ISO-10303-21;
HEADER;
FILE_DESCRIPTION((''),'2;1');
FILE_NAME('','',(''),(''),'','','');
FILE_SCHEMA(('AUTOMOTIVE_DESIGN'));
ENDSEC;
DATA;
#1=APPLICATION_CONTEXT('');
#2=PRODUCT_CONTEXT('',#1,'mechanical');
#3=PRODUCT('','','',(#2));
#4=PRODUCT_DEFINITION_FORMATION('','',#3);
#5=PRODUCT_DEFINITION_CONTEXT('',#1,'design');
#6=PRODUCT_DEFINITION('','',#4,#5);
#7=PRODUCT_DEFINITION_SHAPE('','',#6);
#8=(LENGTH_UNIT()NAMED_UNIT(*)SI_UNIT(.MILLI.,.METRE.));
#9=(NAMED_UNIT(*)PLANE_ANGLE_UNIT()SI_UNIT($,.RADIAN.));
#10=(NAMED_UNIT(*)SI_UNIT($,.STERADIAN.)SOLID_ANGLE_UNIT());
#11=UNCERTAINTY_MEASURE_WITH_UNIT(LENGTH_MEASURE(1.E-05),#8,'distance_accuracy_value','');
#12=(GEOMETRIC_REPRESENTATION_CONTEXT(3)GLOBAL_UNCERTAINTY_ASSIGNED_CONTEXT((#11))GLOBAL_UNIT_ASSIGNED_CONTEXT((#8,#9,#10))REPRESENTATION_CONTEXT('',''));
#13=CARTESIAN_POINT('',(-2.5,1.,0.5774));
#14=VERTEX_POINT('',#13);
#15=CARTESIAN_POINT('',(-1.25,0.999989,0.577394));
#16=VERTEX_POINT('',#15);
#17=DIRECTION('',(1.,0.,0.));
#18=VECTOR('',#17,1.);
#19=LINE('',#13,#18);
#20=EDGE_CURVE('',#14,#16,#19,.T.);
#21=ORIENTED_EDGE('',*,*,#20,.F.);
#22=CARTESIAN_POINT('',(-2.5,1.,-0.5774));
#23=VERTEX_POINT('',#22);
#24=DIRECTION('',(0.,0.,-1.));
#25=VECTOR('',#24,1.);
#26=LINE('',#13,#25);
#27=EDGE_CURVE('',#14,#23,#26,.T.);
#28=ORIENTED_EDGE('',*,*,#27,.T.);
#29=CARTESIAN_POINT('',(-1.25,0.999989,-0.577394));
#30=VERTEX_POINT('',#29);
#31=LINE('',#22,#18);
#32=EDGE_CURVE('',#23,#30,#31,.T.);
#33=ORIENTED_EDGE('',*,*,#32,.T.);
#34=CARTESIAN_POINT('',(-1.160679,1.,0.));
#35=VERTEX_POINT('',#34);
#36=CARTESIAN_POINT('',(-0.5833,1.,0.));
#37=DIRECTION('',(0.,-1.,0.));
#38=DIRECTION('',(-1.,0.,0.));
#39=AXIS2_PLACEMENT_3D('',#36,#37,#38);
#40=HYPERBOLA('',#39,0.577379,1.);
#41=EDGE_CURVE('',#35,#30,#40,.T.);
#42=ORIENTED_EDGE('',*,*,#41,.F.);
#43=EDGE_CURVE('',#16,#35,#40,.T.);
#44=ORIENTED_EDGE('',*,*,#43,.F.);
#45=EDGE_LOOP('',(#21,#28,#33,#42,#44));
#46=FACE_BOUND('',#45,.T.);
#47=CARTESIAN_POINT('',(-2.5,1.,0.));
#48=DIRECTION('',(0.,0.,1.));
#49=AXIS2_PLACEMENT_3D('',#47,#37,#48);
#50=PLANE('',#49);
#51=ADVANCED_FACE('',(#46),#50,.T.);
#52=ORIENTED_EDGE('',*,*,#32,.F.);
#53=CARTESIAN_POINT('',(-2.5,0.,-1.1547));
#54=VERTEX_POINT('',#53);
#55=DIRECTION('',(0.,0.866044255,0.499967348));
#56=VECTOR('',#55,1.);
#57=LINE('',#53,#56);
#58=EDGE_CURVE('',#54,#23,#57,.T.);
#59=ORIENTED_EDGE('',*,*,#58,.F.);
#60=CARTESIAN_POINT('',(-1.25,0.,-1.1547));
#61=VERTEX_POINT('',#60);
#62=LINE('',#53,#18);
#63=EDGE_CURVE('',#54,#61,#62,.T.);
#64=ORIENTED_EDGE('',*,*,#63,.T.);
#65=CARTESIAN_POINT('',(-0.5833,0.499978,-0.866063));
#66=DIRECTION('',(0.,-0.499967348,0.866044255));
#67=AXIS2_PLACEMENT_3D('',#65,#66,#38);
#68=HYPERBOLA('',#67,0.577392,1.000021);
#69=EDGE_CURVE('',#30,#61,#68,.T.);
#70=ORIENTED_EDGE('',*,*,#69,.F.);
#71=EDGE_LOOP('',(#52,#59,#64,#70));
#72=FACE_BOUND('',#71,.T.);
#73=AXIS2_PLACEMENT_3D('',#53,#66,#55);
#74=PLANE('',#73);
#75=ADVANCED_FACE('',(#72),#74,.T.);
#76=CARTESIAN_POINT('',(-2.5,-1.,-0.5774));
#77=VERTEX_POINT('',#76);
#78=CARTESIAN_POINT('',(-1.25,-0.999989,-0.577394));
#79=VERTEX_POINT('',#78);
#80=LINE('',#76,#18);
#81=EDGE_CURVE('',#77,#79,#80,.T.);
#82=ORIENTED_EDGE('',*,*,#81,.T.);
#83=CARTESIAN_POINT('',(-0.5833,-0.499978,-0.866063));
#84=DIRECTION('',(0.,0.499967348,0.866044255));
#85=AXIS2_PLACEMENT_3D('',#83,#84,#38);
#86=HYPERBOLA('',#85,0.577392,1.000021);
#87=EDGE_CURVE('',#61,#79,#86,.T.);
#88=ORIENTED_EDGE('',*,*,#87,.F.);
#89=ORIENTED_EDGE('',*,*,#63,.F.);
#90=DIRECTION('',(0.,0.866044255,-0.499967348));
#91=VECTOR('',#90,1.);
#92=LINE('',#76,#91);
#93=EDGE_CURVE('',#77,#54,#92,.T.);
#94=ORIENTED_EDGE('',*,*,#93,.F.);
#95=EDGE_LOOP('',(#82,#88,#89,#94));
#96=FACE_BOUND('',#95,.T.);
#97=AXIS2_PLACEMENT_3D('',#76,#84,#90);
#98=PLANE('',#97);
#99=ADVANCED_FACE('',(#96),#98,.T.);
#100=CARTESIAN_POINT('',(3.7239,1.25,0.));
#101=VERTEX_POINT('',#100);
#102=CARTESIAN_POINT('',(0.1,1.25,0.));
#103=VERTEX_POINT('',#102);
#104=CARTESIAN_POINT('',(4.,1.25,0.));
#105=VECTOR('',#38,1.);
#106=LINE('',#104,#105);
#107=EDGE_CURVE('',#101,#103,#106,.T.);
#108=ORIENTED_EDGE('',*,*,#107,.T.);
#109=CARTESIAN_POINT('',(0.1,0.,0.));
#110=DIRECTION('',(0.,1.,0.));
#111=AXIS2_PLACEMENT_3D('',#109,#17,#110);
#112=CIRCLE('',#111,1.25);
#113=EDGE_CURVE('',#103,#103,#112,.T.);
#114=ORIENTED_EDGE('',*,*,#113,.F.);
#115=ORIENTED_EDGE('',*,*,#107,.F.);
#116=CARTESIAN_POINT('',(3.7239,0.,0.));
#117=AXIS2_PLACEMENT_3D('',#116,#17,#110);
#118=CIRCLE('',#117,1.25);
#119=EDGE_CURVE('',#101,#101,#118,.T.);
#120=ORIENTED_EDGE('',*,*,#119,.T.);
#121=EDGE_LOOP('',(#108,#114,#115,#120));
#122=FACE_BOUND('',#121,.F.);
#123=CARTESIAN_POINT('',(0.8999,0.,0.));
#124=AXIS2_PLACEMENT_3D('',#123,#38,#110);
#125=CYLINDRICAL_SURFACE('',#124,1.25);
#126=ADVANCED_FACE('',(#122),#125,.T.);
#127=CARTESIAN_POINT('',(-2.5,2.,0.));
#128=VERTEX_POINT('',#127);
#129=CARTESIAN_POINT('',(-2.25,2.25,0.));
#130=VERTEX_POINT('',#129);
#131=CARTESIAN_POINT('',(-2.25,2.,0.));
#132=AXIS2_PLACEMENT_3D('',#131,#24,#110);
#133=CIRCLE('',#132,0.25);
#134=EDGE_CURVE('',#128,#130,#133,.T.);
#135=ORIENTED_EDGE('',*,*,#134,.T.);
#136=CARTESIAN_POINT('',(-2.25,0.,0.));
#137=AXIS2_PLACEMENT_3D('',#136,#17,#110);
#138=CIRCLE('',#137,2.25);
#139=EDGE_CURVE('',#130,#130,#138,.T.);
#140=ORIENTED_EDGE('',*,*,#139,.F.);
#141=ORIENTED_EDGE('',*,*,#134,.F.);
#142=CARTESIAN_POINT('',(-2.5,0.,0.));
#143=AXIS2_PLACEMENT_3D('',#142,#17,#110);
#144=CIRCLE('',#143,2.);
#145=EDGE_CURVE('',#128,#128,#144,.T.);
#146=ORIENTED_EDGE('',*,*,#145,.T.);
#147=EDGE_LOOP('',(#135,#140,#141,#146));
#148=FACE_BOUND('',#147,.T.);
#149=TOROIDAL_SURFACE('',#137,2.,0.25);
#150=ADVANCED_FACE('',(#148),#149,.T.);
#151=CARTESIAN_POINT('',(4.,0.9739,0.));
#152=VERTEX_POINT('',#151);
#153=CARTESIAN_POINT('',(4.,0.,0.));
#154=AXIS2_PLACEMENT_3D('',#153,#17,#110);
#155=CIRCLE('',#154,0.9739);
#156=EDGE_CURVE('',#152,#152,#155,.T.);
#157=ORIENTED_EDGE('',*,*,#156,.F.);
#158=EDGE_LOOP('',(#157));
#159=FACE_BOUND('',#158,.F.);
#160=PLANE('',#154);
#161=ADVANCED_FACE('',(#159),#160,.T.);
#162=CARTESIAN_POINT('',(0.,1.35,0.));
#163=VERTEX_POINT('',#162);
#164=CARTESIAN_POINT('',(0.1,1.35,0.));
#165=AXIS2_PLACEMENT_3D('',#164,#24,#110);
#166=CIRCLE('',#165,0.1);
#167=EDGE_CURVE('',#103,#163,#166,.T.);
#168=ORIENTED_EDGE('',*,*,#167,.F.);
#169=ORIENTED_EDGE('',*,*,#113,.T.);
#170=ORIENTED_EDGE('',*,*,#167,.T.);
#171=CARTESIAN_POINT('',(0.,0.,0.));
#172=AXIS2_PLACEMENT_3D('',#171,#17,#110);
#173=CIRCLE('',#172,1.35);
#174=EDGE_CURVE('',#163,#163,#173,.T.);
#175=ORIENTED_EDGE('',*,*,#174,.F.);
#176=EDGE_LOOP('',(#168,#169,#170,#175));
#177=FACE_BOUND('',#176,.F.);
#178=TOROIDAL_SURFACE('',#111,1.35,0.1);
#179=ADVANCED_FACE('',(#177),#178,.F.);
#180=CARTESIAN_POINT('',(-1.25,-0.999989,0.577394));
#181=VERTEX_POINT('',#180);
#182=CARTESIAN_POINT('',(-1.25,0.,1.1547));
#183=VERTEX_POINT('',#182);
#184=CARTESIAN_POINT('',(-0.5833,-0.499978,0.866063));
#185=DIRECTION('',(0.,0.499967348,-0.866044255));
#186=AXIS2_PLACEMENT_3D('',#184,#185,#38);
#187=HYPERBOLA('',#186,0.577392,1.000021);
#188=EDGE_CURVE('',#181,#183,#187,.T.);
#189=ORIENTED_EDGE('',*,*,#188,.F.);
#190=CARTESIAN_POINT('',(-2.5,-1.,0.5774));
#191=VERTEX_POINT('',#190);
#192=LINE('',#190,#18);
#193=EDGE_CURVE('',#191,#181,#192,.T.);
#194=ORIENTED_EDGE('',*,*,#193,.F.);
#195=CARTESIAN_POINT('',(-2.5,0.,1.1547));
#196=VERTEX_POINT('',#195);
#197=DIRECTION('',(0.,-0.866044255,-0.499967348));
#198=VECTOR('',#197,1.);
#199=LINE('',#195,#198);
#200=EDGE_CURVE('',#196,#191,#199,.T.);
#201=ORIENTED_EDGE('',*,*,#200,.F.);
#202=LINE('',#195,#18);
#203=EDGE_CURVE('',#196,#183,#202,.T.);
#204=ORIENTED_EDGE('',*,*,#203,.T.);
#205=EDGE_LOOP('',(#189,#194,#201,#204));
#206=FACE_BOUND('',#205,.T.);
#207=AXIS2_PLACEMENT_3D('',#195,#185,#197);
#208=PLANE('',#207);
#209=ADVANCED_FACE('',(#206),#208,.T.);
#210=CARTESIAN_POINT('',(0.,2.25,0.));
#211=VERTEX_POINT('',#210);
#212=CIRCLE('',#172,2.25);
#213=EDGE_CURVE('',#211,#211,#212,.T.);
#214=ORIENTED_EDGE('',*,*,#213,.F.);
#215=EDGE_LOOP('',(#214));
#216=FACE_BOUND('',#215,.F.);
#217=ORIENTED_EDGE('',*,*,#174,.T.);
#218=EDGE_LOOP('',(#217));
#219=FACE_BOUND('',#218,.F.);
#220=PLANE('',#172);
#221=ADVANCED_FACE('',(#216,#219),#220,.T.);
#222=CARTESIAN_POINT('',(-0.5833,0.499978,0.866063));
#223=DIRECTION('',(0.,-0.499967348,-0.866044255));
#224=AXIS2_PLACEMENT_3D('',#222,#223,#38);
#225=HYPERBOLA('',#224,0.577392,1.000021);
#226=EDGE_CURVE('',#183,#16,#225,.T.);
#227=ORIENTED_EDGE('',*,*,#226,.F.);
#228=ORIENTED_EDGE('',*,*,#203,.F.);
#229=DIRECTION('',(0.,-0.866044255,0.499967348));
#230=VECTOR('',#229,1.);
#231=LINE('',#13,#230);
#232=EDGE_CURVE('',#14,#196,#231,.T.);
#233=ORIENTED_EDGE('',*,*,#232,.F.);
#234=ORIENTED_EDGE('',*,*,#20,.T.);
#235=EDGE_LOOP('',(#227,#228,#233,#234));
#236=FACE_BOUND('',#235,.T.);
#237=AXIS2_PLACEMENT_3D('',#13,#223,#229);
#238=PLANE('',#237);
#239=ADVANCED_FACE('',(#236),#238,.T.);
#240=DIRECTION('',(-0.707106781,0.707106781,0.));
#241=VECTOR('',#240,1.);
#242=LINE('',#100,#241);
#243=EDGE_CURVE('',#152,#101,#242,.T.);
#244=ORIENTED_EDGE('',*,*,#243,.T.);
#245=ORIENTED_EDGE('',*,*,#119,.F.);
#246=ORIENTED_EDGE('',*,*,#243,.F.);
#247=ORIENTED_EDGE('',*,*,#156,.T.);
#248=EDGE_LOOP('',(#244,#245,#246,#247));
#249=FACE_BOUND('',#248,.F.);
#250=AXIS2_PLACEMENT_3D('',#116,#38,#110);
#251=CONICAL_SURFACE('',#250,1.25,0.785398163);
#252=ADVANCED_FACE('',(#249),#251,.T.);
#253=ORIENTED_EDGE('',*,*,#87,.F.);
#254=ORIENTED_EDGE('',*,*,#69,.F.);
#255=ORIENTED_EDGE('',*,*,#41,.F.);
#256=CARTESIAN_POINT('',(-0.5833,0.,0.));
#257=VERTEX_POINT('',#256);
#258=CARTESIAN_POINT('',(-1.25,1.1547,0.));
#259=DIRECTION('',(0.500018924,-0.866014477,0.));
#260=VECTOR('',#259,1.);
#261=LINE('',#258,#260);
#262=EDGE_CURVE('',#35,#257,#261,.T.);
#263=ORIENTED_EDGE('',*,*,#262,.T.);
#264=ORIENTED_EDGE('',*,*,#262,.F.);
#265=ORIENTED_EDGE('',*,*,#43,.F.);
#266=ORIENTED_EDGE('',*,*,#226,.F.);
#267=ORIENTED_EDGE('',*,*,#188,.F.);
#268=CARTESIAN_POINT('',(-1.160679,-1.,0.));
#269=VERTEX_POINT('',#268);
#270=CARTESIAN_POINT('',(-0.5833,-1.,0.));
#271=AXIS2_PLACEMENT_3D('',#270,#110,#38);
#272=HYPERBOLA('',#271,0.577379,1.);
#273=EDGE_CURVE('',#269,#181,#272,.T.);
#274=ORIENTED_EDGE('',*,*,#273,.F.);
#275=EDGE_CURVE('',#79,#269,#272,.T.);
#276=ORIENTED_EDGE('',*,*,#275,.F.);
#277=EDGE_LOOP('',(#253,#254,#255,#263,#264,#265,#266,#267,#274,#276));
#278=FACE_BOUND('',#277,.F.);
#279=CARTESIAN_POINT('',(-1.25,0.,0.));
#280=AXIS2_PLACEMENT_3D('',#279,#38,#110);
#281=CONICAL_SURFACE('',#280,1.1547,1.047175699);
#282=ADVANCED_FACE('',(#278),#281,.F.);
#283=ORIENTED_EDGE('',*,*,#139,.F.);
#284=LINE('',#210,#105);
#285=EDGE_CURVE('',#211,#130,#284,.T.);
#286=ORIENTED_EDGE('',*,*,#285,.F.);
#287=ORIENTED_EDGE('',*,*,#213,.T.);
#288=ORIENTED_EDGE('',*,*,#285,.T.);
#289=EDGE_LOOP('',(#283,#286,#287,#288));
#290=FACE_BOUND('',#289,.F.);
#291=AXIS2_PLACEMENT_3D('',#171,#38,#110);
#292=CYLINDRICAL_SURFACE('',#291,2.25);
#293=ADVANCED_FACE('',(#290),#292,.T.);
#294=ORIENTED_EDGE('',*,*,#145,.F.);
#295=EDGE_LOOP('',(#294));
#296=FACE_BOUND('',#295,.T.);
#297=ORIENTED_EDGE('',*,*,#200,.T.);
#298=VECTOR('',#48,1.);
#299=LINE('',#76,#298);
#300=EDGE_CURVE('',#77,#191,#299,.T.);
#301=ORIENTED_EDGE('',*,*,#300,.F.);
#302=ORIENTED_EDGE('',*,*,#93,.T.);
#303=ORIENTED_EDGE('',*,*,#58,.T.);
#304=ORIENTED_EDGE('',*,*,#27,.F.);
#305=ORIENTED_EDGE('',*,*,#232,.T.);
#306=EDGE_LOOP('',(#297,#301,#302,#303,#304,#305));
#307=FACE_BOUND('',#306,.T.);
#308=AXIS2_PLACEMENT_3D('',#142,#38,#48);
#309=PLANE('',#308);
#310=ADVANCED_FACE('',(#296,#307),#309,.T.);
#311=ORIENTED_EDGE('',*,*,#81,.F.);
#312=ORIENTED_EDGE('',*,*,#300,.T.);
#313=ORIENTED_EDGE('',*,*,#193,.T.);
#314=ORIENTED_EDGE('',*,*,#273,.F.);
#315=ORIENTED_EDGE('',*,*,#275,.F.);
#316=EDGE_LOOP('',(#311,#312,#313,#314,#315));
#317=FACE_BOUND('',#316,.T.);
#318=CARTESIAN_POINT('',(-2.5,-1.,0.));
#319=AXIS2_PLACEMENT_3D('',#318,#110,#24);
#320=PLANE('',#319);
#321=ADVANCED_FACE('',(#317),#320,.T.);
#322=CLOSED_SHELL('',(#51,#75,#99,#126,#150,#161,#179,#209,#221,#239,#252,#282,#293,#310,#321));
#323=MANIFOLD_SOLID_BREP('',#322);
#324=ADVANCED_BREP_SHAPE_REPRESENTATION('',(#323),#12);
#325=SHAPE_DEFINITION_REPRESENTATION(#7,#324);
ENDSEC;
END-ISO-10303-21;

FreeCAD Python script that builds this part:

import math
import FreeCAD as App
import Part
import Sketcher

V = App.Vector


def edges_at(feature, points):
    """Names of the edges that pass closest to the given points."""
    edges = feature.Shape.Edges
    near = lambda p: min(range(len(edges)), key=lambda i: edges[i].distToShape(Part.Vertex(*p))[0])
    return sorted({f"Edge{near(p) + 1}" for p in points})


def add_polygon(sketch, points):
    """Adds a closed chain of lines whose ends are joined by coincident constraints."""
    first, n = sketch.GeometryCount, len(points)
    for a, b in zip(points, points[1:] + points[:1]):
        sketch.addGeometry(Part.LineSegment(App.Vector(*a, 0), App.Vector(*b, 0)), False)
    for i in range(n):
        sketch.addConstraint(Sketcher.Constraint("Coincident", first + i, 2, first + (i + 1) % n, 1))

doc = App.newDocument("Part")
body = doc.addObject("PartDesign::Body", "Body")

# Sketch on XY plane
sketch1 = doc.addObject("Sketcher::SketchObject", "Sketch")
body.addObject(sketch1)
sketch1.AttachmentSupport = (doc.XY_Plane, [""])
sketch1.MapMode = "FlatFace"
add_polygon(sketch1, [(-1.2, 1.2), (-0.6, 0), (4, 0), (4, 1.2), (0, 1.2), (0, 2.2), (-2.5, 2.2), (-2.5, 1.2)])  # lines 0-7
sketch1.addConstraint(Sketcher.Constraint("Horizontal", 1))
sketch1.addConstraint(Sketcher.Constraint("Vertical", 2))
sketch1.addConstraint(Sketcher.Constraint("Horizontal", 3))
sketch1.addConstraint(Sketcher.Constraint("Vertical", 4))
sketch1.addConstraint(Sketcher.Constraint("Horizontal", 5))
sketch1.addConstraint(Sketcher.Constraint("Vertical", 6))
sketch1.addConstraint(Sketcher.Constraint("Horizontal", 7))
sketch1.addConstraint(Sketcher.Constraint("PointOnObject", 0, 2, -1))
sketch1.addConstraint(Sketcher.Constraint("PointOnObject", 3, 2, -2))
sketch1.addConstraint(Sketcher.Constraint("Equal", 7, 2))
sketch1.addConstraint(Sketcher.Constraint("DistanceX", 3, 2, 3, 1, 4.0))
sketch1.addConstraint(Sketcher.Constraint("DistanceX", 5, 2, 5, 1, 2.5))
sketch1.addConstraint(Sketcher.Constraint("DistanceX", 7, 1, 7, 2, 1.25))
sketch1.addConstraint(Sketcher.Constraint("DistanceY", 4, 1, 4, 2, 1.0))
sketch1.addConstraint(Sketcher.Constraint("DistanceX", 1, 1, 1, 2, 4.5833))
sketch1.addConstraint(Sketcher.Constraint("DistanceY", 6, 2, 6, 1, 1.0953))
revolution = doc.addObject("PartDesign::Revolution", "Revolution")
body.addObject(revolution)
revolution.Profile = sketch1
revolution.ReferenceAxis = (sketch1, ["H_Axis"])
revolution.Angle = 360

# Sketch on YZ plane
sketch2 = doc.addObject("Sketcher::SketchObject", "Sketch001")
body.addObject(sketch2)
sketch2.AttachmentSupport = (doc.YZ_Plane, [""])
sketch2.MapMode = "FlatFace"
sketch2.AttachmentOffset = App.Placement(V(0, 0, -2.5), App.Rotation())
sketch2.addGeometry(Part.LineSegment(V(1, 0.6, 0), V(0, 1.2, 0)), False)
sketch2.addGeometry(Part.ArcOfCircle(Part.Circle(V(0, 0, 0), V(0, 0, 1), 1.2), math.radians(30), math.radians(90)), False)
sketch2.addGeometry(Part.ArcOfCircle(Part.Circle(V(0, 0, 0), V(0, 0, 1), 1.2), math.radians(90), math.radians(150)), False)
sketch2.addGeometry(Part.LineSegment(V(0, 1.2, 0), V(-1, 0.6, 0)), False)
sketch2.addGeometry(Part.ArcOfCircle(Part.Circle(V(0, 0, 0), V(0, 0, 1), 1.2), math.radians(-30), math.radians(30)), False)
sketch2.addGeometry(Part.LineSegment(V(1, 0.6, 0), V(1, -0.6, 0)), False)
sketch2.addGeometry(Part.LineSegment(V(-1, 0.6, 0), V(-1, -0.6, 0)), False)
sketch2.addGeometry(Part.ArcOfCircle(Part.Circle(V(0, 0, 0), V(0, 0, 1), 1.2), math.radians(150), math.radians(210)), False)
sketch2.addGeometry(Part.LineSegment(V(-1, -0.6, 0), V(0, -1.2, 0)), False)
sketch2.addGeometry(Part.ArcOfCircle(Part.Circle(V(0, 0, 0), V(0, 0, 1), 1.2), math.radians(-150), math.radians(-90)), False)
sketch2.addGeometry(Part.ArcOfCircle(Part.Circle(V(0, 0, 0), V(0, 0, 1), 1.2), math.radians(-90), math.radians(-30)), False)
sketch2.addGeometry(Part.LineSegment(V(0, -1.2, 0), V(1, -0.6, 0)), False)
sketch2.addConstraint(Sketcher.Constraint("Coincident", 0, 1, 1, 1))
sketch2.addConstraint(Sketcher.Constraint("Coincident", 1, 2, 0, 2))
sketch2.addConstraint(Sketcher.Constraint("Coincident", 2, 1, 3, 1))
sketch2.addConstraint(Sketcher.Constraint("Coincident", 3, 2, 2, 2))
sketch2.addConstraint(Sketcher.Constraint("Coincident", 4, 1, 5, 2))
sketch2.addConstraint(Sketcher.Constraint("Coincident", 5, 1, 4, 2))
sketch2.addConstraint(Sketcher.Constraint("Coincident", 6, 1, 7, 1))
sketch2.addConstraint(Sketcher.Constraint("Coincident", 7, 2, 6, 2))
sketch2.addConstraint(Sketcher.Constraint("Coincident", 8, 1, 9, 1))
sketch2.addConstraint(Sketcher.Constraint("Coincident", 9, 2, 8, 2))
sketch2.addConstraint(Sketcher.Constraint("Coincident", 10, 1, 11, 1))
sketch2.addConstraint(Sketcher.Constraint("Coincident", 11, 2, 10, 2))
sketch2.addConstraint(Sketcher.Constraint("Vertical", 5))
sketch2.addConstraint(Sketcher.Constraint("Vertical", 6))
sketch2.addConstraint(Sketcher.Constraint("Coincident", 1, 3, -1, 1))
sketch2.addConstraint(Sketcher.Constraint("Coincident", 2, 3, -1, 1))
sketch2.addConstraint(Sketcher.Constraint("Coincident", 4, 3, -1, 1))
sketch2.addConstraint(Sketcher.Constraint("Coincident", 7, 3, -1, 1))
sketch2.addConstraint(Sketcher.Constraint("Coincident", 9, 3, -1, 1))
sketch2.addConstraint(Sketcher.Constraint("Coincident", 10, 3, -1, 1))
sketch2.addConstraint(Sketcher.Constraint("Coincident", 2, 1, 1, 2))
sketch2.addConstraint(Sketcher.Constraint("Coincident", 5, 1, 0, 1))
sketch2.addConstraint(Sketcher.Constraint("Coincident", 6, 1, 3, 2))
sketch2.addConstraint(Sketcher.Constraint("Coincident", 8, 1, 7, 2))
sketch2.addConstraint(Sketcher.Constraint("Coincident", 10, 1, 9, 2))
sketch2.addConstraint(Sketcher.Constraint("PointOnObject", 1, 2, -2))
sketch2.addConstraint(Sketcher.Constraint("PointOnObject", 9, 2, -2))
sketch2.addConstraint(Sketcher.Constraint("Parallel", 0, 8))
sketch2.addConstraint(Sketcher.Constraint("Parallel", 3, 11))
sketch2.addConstraint(Sketcher.Constraint("DistanceX", -1, 1, 0, 1, 1.0))
sketch2.addConstraint(Sketcher.Constraint("Radius", 1, 1.1547))
pad1 = doc.addObject("PartDesign::Pad", "Pad")
body.addObject(pad1)
pad1.Profile = sketch2
pad1.Type = "UpToFirst"
doc.recompute()

fillet = doc.addObject("PartDesign::Fillet", "Fillet")
body.addObject(fillet)
fillet.Base = (pad1, edges_at(pad1, [(-2.5, -2.25, 0)]))
fillet.Radius = 0.25
doc.recompute()

chamfer = doc.addObject("PartDesign::Chamfer", "Chamfer")
body.addObject(chamfer)
chamfer.Base = (fillet, edges_at(fillet, [(4, -1.25, 0)]))
chamfer.ChamferType = "Two distances"
chamfer.Size = 0.2761
chamfer.Size2 = 0.2761
doc.recompute()

fillet2 = doc.addObject("PartDesign::Fillet", "Fillet001")
body.addObject(fillet2)
fillet2.Base = (chamfer, edges_at(chamfer, [(0, -1.25, 0)]))
fillet2.Radius = 0.1

doc.recompute()
